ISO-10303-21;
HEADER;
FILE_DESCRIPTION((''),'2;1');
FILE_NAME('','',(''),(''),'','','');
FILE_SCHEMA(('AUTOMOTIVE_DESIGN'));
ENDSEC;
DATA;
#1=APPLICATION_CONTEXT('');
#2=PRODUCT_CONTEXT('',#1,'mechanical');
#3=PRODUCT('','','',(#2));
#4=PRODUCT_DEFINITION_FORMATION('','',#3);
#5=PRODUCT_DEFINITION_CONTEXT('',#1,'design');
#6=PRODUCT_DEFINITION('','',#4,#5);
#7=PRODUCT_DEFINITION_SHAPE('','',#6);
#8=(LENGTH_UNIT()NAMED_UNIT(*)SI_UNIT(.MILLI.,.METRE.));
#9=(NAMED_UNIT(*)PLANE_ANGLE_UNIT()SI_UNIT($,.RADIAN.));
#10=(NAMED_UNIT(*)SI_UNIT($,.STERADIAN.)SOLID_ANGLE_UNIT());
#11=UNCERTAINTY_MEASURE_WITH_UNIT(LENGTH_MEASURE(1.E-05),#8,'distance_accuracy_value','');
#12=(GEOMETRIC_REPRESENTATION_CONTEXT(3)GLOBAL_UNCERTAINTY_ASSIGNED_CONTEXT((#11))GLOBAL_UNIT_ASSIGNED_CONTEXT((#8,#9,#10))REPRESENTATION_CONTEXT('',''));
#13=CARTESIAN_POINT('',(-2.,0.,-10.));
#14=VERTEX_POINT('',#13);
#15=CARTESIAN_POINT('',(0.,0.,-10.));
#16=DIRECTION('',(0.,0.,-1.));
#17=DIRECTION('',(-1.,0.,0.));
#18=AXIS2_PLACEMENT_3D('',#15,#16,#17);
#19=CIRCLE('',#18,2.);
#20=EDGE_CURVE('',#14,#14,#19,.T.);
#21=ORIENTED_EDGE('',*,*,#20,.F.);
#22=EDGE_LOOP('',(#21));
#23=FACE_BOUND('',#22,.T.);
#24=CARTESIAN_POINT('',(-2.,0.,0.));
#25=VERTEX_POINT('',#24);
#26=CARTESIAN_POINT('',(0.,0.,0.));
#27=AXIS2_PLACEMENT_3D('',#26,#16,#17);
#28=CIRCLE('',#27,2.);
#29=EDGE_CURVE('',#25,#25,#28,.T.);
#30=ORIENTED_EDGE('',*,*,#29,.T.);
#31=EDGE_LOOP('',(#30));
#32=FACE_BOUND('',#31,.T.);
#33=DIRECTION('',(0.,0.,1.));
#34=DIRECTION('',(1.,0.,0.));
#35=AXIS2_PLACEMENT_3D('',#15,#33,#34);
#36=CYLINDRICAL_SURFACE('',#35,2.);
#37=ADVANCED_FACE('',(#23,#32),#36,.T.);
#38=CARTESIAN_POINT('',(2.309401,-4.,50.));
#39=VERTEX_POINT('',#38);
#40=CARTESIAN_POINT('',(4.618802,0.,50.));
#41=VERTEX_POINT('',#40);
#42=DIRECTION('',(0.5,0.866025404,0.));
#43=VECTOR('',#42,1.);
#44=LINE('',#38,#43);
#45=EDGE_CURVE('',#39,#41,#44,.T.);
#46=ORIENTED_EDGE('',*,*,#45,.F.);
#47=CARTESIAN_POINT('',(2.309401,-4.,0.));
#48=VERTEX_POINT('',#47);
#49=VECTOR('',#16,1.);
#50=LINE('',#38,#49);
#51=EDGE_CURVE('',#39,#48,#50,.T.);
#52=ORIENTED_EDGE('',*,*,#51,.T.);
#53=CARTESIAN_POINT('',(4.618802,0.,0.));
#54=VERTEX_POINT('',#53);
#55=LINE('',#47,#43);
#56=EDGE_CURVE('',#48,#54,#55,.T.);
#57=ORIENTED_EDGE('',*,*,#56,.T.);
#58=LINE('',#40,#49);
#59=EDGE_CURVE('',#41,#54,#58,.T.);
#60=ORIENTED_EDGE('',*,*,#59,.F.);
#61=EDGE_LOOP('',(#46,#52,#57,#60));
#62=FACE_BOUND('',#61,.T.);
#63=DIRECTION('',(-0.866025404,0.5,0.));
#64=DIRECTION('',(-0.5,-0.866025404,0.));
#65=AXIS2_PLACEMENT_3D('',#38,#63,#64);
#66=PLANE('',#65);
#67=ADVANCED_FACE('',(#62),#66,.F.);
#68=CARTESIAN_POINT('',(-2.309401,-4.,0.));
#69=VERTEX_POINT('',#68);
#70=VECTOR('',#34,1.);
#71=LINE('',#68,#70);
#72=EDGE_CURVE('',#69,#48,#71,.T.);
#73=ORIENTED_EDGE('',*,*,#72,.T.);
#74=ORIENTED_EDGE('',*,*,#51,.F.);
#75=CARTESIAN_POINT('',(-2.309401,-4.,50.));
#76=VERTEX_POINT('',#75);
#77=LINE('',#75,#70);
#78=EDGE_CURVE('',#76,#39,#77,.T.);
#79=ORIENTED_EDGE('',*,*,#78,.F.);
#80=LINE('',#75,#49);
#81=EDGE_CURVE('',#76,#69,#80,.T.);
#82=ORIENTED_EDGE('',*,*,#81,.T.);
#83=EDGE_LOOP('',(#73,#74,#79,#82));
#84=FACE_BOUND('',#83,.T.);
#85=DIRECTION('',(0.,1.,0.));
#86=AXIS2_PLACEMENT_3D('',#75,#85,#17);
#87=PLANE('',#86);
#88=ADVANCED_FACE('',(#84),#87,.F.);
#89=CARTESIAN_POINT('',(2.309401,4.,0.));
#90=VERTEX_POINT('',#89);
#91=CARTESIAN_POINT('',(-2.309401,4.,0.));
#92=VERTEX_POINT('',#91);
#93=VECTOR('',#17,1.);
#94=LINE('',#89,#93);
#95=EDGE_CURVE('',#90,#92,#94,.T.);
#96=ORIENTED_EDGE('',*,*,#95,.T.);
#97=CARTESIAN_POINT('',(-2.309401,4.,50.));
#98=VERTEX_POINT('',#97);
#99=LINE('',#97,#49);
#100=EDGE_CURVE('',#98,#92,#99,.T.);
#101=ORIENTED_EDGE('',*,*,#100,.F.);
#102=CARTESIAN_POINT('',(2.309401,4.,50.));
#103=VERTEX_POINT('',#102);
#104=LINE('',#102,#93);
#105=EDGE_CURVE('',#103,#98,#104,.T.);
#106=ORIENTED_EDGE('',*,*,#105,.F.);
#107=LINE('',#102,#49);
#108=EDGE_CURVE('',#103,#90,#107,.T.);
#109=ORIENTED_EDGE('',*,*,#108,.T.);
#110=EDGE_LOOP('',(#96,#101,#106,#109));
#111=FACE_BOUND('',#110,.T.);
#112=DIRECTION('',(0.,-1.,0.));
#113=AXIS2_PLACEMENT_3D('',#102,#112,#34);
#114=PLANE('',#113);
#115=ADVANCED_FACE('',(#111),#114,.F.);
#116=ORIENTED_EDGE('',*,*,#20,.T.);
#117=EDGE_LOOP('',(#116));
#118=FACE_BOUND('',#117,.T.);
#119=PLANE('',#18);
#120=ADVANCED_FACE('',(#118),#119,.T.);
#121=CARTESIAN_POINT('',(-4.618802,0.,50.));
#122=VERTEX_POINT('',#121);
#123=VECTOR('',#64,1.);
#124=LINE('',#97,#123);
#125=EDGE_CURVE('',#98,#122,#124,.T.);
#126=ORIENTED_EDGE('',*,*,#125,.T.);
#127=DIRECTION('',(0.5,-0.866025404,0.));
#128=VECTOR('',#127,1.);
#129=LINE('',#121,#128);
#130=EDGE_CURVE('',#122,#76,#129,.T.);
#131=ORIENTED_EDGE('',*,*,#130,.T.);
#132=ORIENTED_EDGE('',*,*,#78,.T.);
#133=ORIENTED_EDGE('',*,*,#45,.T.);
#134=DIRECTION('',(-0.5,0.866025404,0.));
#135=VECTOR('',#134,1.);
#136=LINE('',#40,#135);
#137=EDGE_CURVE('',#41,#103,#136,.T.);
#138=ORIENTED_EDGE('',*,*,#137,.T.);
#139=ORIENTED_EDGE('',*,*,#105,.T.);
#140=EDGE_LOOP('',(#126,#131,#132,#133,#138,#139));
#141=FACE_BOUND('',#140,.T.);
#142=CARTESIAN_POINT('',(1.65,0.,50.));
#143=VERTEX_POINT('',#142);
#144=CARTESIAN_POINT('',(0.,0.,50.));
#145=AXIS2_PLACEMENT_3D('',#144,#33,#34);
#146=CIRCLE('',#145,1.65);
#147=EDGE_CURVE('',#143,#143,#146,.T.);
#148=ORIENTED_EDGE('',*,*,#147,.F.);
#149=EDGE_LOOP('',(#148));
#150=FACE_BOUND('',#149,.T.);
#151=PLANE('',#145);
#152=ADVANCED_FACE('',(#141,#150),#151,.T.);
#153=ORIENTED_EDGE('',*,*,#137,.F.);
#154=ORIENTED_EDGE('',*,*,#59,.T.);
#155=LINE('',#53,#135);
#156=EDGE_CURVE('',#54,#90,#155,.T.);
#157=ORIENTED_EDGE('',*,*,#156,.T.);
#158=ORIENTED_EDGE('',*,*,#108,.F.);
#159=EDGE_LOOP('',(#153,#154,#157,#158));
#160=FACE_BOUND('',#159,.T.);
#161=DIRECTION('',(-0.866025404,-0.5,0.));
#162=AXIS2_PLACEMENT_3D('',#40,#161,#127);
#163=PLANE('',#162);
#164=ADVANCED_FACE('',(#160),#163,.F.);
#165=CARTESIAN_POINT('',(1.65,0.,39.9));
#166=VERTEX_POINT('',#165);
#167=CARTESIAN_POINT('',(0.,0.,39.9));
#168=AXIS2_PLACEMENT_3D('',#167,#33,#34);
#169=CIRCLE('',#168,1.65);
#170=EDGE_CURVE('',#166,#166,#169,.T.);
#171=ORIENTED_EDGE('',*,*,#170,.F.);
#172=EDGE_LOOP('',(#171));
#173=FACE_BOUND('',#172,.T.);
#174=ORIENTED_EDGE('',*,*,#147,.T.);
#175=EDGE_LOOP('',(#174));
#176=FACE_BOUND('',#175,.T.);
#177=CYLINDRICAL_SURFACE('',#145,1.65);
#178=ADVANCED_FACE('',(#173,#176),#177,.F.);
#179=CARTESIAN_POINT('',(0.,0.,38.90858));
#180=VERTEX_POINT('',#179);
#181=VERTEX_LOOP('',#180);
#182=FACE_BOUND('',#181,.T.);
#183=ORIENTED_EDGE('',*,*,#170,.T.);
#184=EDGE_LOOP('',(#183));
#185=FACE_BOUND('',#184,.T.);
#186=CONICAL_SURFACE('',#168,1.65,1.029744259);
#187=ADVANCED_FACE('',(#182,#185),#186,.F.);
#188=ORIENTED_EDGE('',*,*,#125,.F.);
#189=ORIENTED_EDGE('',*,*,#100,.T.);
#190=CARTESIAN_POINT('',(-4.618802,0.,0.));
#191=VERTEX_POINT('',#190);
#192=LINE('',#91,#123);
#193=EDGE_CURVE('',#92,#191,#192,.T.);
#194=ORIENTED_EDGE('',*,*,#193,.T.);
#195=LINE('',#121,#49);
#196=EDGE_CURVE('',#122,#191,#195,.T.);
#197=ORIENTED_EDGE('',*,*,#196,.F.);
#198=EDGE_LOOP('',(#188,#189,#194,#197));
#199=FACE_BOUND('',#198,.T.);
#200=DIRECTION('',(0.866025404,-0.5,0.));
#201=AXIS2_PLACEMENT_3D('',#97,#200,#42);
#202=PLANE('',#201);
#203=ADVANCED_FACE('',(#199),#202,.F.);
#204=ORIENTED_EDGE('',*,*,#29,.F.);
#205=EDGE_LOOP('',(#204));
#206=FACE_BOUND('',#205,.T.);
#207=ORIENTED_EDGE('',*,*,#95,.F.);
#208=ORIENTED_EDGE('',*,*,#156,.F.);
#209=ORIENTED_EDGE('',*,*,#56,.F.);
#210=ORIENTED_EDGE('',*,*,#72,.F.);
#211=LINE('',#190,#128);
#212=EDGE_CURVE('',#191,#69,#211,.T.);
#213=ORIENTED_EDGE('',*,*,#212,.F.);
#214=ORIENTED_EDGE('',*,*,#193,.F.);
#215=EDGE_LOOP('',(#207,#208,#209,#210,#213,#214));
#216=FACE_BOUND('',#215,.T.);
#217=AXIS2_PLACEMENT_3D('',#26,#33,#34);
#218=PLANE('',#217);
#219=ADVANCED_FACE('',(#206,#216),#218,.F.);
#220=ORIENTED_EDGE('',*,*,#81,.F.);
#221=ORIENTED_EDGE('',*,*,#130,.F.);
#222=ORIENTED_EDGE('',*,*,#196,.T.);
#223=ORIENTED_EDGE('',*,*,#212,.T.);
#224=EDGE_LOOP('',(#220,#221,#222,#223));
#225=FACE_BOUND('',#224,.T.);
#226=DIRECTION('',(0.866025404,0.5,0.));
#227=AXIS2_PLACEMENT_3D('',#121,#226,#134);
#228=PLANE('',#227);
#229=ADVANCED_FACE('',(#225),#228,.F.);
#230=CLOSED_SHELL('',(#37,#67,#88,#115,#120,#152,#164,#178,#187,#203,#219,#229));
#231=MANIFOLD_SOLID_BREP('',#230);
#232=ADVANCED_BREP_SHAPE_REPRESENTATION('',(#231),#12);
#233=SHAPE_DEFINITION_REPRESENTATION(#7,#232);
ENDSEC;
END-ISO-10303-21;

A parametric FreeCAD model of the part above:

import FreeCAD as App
import Part
import Sketcher
Q = App.Units.Quantity


def add_polygon(sketch, points):
    """Adds a closed chain of lines whose ends are joined by coincident constraints."""
    first, n = sketch.GeometryCount, len(points)
    for a, b in zip(points, points[1:] + points[:1]):
        sketch.addGeometry(Part.LineSegment(App.Vector(*a, 0), App.Vector(*b, 0)), False)
    for i in range(n):
        sketch.addConstraint(Sketcher.Constraint("Coincident", first + i, 2, first + (i + 1) % n, 1))

doc = App.newDocument("Part")
body = doc.addObject("PartDesign::Body", "Body")

# Sketch on XY plane
sketch1 = body.newObject("Sketcher::SketchObject", "Sketch")
sketch1.AttachmentSupport = (doc.getObject("XY_Plane"), [""])
sketch1.MapMode = "FlatFace"
add_polygon(sketch1, [(-2.309401, 4), (-4.618802, 0), (-2.309401, -4), (2.309401, -4), (4.618802, 0), (2.309401, 4)])  # lines 0-5
sketch1.addConstraint([
    Sketcher.Constraint("Horizontal", 2),
    Sketcher.Constraint("Horizontal", 5),
    Sketcher.Constraint("Symmetric", 0, 2, 3, 2, -1, 1),
    Sketcher.Constraint("Symmetric", 1, 2, 4, 2, -1, 1),
    Sketcher.Constraint("PointOnObject", 0, 2, -1),
    Sketcher.Constraint("Parallel", 0, 3),
    Sketcher.Constraint("Vertical", 2, 2, 4, 2),
    Sketcher.Constraint("Angle", 0, Q("-120 deg")),
    Sketcher.Constraint("DistanceY", 1, 2, -1, 1, Q("4 mm")),
    Sketcher.Constraint("DistanceX", 1, 2, -1, 1, Q("2.309401 mm")),
])
pad1 = body.newObject("PartDesign::Pad", "Pad")
pad1.Profile = sketch1
pad1.Length = 50

# Sketch on XY plane
sketch2 = body.newObject("Sketcher::SketchObject", "Sketch001")
sketch2.AttachmentSupport = (doc.getObject("XY_Plane"), [""])
sketch2.MapMode = "FlatFace"
sketch2.addGeometry(Part.Circle(App.Vector(0, 0, 0), App.Vector(0, 0, 1), 2), False)
sketch2.addConstraint([
    Sketcher.Constraint("Coincident", 0, 3, -1, 1),
    Sketcher.Constraint("Diameter", 0, Q("4 mm")),
])
pad2 = body.newObject("PartDesign::Pad", "Pad001")
pad2.Profile = sketch2
pad2.Length = 10
pad2.Reversed = True

# Sketch on XY plane
sketch3 = body.newObject("Sketcher::SketchObject", "Sketch002")
sketch3.AttachmentSupport = (doc.getObject("XY_Plane"), [""])
sketch3.MapMode = "FlatFace"
sketch3.AttachmentOffset = App.Placement(App.Vector(0, 0, 50), App.Rotation())
sketch3.addGeometry(Part.Circle(App.Vector(0, 0, 0), App.Vector(0, 0, 1), 1.65), False)
sketch3.addConstraint([
    Sketcher.Constraint("Coincident", 0, 3, -1, 1),
    Sketcher.Constraint("Diameter", 0, Q("3.3 mm")),
])
doc.recompute()
hole = body.newObject("PartDesign::Hole", "Hole")
hole.Profile = sketch3
hole.ThreadType = "None"
hole.Diameter = 3.3
hole.DepthType = "Dimension"
hole.Depth = 10.1
hole.DrillPoint = "Angled"
hole.DrillPointAngle = 118

doc.recompute()
